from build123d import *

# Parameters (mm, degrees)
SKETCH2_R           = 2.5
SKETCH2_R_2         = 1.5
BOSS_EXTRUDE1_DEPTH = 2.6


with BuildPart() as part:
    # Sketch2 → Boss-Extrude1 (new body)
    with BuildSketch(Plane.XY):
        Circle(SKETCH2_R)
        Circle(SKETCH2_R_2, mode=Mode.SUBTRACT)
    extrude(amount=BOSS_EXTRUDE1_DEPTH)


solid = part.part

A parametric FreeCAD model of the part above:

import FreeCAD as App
import Part
import Sketcher

V = App.Vector

doc = App.newDocument("Part")
body = doc.addObject("PartDesign::Body", "Body")

# Sketch on XY plane
sketch1 = doc.addObject("Sketcher::SketchObject", "Sketch")
body.addObject(sketch1)
sketch1.AttachmentSupport = (doc.XY_Plane, [""])
sketch1.MapMode = "FlatFace"
sketch1.addGeometry(Part.Circle(V(0, 0, 0), V(0, 0, 1), 2.5), False)
sketch1.addGeometry(Part.Circle(V(0, 0, 0), V(0, 0, 1), 1.5), False)
sketch1.addConstraint(Sketcher.Constraint("Coincident", 0, 3, -1, 1))
sketch1.addConstraint(Sketcher.Constraint("Coincident", 1, 3, -1, 1))
sketch1.addConstraint(Sketcher.Constraint("Diameter", 0, 5.0))
sketch1.addConstraint(Sketcher.Constraint("Diameter", 1, 3.0))
pad1 = doc.addObject("PartDesign::Pad", "Pad")
body.addObject(pad1)
pad1.Profile = sketch1
pad1.Length = 2.6

doc.recompute()
